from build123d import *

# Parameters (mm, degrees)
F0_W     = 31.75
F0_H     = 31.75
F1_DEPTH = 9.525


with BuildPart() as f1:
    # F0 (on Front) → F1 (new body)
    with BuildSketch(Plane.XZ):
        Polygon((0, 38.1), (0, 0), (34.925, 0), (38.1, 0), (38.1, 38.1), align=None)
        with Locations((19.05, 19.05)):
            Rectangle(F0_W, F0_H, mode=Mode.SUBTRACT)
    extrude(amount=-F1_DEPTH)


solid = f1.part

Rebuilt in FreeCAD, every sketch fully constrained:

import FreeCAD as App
import Part
import Sketcher
from FreeCAD import Vector
Q = App.Units.Quantity


def add_polygon(sketch, points):
    """Adds a closed chain of lines whose ends are joined by coincident constraints."""
    first, n = sketch.GeometryCount, len(points)
    for a, b in zip(points, points[1:] + points[:1]):
        sketch.addGeometry(Part.LineSegment(App.Vector(*a, 0), App.Vector(*b, 0)), False)
    for i in range(n):
        sketch.addConstraint(Sketcher.Constraint("Coincident", first + i, 2, first + (i + 1) % n, 1))

doc = App.newDocument("Part")
params = doc.addObject("Spreadsheet::Sheet", "Params")
for row, (alias, value) in enumerate([
    ("sketch1_width", "1.5 in"),
    ("sketch1_width2", "1.25 in"),
    ("pad1_length", "0.375 in"),
], start=1):
    params.set(f"A{row}", alias)
    params.set(f"B{row}", "=" + value)
    params.setAlias(f"B{row}", alias)

body = doc.addObject("PartDesign::Body", "Body")

# Sketch on XZ plane
sketch1 = body.newObject("Sketcher::SketchObject", "Sketch")
sketch1.AttachmentSupport = (doc.getObject("XZ_Plane"), [""])
sketch1.MapMode = "FlatFace"
add_polygon(sketch1, [(0, 38), (0, 0), (38, 0), (38, 38)])  # lines 0-3
add_polygon(sketch1, [(35, 3), (3, 3), (3, 35), (35, 35)])  # lines 4-7
sketch1.addConstraint([
    Sketcher.Constraint("Vertical", 0),
    Sketcher.Constraint("Horizontal", 1),
    Sketcher.Constraint("Vertical", 2),
    Sketcher.Constraint("Horizontal", 3),
    Sketcher.Constraint("Horizontal", 4),
    Sketcher.Constraint("Vertical", 5),
    Sketcher.Constraint("Horizontal", 6),
    Sketcher.Constraint("Vertical", 7),
    Sketcher.Constraint("Coincident", 0, 2, -1, 1),
    Sketcher.Constraint("Equal", 3, 0),
    Sketcher.Constraint("Equal", 6, 5),
    Sketcher.Constraint("DistanceX", 1, 1, 1, 2, Q("1.5 in")),
    Sketcher.Constraint("DistanceX", 4, 2, 4, 1, Q("1.25 in")),
    Sketcher.Constraint("DistanceX", -1, 1, 4, 2, Q("0.125 in")),
    Sketcher.Constraint("DistanceY", -1, 1, 4, 2, Q("0.125 in")),
])
sketch1.setExpression("Constraints[19]", "Params.sketch1_width")
sketch1.setExpression("Constraints[20]", "Params.sketch1_width2")
pad1 = body.newObject("PartDesign::Pad", "Pad")
pad1.Profile = sketch1
pad1.setExpression("Length", "Params.pad1_length")
pad1.Reversed = True

doc.recompute()
